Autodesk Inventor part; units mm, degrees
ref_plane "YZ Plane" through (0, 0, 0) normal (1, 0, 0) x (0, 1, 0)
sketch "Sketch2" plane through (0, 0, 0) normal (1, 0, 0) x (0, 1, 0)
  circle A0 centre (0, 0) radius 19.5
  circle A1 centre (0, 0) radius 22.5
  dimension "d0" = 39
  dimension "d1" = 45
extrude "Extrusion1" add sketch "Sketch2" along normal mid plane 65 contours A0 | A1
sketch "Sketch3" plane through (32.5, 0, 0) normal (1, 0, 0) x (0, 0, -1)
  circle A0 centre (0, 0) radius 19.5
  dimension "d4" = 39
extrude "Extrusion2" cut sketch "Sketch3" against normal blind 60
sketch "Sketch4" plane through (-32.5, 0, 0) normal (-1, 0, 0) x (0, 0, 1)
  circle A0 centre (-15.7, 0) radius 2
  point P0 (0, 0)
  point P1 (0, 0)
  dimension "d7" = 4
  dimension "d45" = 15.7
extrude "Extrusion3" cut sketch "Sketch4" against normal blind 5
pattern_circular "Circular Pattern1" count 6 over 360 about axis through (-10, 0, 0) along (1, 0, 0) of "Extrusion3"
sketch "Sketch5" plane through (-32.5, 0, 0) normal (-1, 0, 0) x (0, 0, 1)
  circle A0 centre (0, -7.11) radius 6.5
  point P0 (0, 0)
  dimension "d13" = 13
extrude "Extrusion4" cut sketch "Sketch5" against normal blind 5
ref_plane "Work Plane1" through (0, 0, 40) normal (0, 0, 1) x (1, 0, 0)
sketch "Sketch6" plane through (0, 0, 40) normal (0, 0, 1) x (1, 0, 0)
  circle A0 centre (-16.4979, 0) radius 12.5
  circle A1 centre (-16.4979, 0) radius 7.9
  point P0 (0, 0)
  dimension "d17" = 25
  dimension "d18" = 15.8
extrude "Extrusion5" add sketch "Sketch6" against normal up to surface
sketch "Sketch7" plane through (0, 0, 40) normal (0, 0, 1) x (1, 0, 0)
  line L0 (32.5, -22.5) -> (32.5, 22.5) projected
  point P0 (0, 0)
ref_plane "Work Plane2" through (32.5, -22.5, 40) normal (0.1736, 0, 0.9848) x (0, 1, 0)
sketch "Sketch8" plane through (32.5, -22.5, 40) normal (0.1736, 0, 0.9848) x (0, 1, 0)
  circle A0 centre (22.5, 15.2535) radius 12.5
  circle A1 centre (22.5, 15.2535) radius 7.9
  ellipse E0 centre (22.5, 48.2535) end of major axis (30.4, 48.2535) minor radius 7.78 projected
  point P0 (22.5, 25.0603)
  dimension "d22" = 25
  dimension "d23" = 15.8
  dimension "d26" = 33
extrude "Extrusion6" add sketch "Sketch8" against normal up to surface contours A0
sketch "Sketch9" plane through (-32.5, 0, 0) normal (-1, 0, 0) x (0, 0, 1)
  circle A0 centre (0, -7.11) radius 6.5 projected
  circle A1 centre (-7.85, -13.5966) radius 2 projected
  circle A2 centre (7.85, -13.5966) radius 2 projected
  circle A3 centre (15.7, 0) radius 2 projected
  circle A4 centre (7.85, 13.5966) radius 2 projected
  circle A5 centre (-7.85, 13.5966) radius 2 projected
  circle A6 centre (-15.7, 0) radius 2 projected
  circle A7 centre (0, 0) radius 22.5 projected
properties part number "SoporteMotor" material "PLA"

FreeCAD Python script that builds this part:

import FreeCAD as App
import Part
import Sketcher
from FreeCAD import Vector

doc = App.newDocument("Part")
params = doc.addObject("Spreadsheet::Sheet", "Params")
for row, (alias, value) in enumerate([
    ("sketch1_diameter", "45 mm"),
    ("pad1_length", "65 mm"),
    ("sketch2_diameter", "39 mm"),
    ("pocket1_length", "60 mm"),
    ("sketch3_diameter", "4 mm"),
    ("pocket2_length", "5 mm"),
    ("sketch4_diameter", "13 mm"),
    ("pocket3_length", "5 mm"),
    ("sketch5_diameter", "25 mm"),
    ("sketch5_diameter2", "15.8 mm"),
    ("sketch6_diameter", "25 mm"),
    ("sketch6_diameter2", "15.8 mm"),
], start=1):
    params.set(f"A{row}", alias)
    params.set(f"B{row}", "=" + value)
    params.setAlias(f"B{row}", alias)

body = doc.addObject("PartDesign::Body", "Body")

# Sketch on YZ plane
sketch1 = body.newObject("Sketcher::SketchObject", "Sketch")
sketch1.AttachmentSupport = (doc.getObject("YZ_Plane"), [""])
sketch1.MapMode = "FlatFace"
sketch1.addGeometry(Part.Circle(Vector(0, 0, 0), Vector(0, 0, 1), 22.5), False)
sketch1.addConstraint([
    Sketcher.Constraint("Coincident", 0, 3, -1, 1),
    Sketcher.Constraint("Diameter", 0, 45.0),
])
sketch1.setExpression("Constraints[1]", "Params.sketch1_diameter")
pad1 = body.newObject("PartDesign::Pad", "Pad")
pad1.Profile = sketch1
pad1.setExpression("Length", "Params.pad1_length")
pad1.Midplane = True

# Sketch on YZ plane
sketch2 = body.newObject("Sketcher::SketchObject", "Sketch001")
sketch2.AttachmentSupport = (doc.getObject("YZ_Plane"), [""])
sketch2.MapMode = "FlatFace"
sketch2.AttachmentOffset = App.Placement(Vector(0, 0, 32.5), App.Rotation())
sketch2.addGeometry(Part.Circle(Vector(0, 0, 0), Vector(0, 0, 1), 19.5), False)
sketch2.addConstraint([
    Sketcher.Constraint("Coincident", 0, 3, -1, 1),
    Sketcher.Constraint("Diameter", 0, 39.0),
])
sketch2.setExpression("Constraints[1]", "Params.sketch2_diameter")
pocket1 = body.newObject("PartDesign::Pocket", "Pocket")
pocket1.Profile = sketch2
pocket1.setExpression("Length", "Params.pocket1_length")

# Sketch on YZ plane
sketch3 = body.newObject("Sketcher::SketchObject", "Sketch002")
sketch3.AttachmentSupport = (doc.getObject("YZ_Plane"), [""])
sketch3.MapMode = "FlatFace"
sketch3.AttachmentOffset = App.Placement(Vector(0, 0, -32.5), App.Rotation())
sketch3.addGeometry(Part.Circle(Vector(0, -15.7, 0), Vector(0, 0, 1), 2), False)
sketch3.addConstraint([
    Sketcher.Constraint("PointOnObject", 0, 3, -2),
    Sketcher.Constraint("Diameter", 0, 4.0),
    Sketcher.Constraint("DistanceY", 0, 3, -1, 1, 15.7),
])
sketch3.setExpression("Constraints[1]", "Params.sketch3_diameter")
pocket2 = body.newObject("PartDesign::Pocket", "Pocket001")
pocket2.Profile = sketch3
pocket2.setExpression("Length", "Params.pocket2_length")
pocket2.Reversed = True
doc.recompute()

polarpattern = body.newObject("PartDesign::PolarPattern", "PolarPattern")
polarpattern.Originals = [pocket2]
polarpattern.Axis = (doc.getObject("X_Axis"), [""])
polarpattern.Angle = 360
polarpattern.Occurrences = 6
body.Tip = polarpattern

# Sketch on YZ plane
sketch4 = body.newObject("Sketcher::SketchObject", "Sketch003")
sketch4.AttachmentSupport = (doc.getObject("YZ_Plane"), [""])
sketch4.MapMode = "FlatFace"
sketch4.AttachmentOffset = App.Placement(Vector(0, 0, -32.5), App.Rotation())
sketch4.addGeometry(Part.Circle(Vector(-7.11, 0, 0), Vector(0, 0, 1), 6.5), False)
sketch4.addConstraint([
    Sketcher.Constraint("PointOnObject", 0, 3, -1),
    Sketcher.Constraint("Diameter", 0, 13.0),
    Sketcher.Constraint("DistanceX", 0, 3, -1, 1, 7.11),
])
sketch4.setExpression("Constraints[1]", "Params.sketch4_diameter")
pocket3 = body.newObject("PartDesign::Pocket", "Pocket002")
pocket3.Profile = sketch4
pocket3.setExpression("Length", "Params.pocket3_length")
pocket3.Reversed = True

# Sketch on XY plane
sketch5 = body.newObject("Sketcher::SketchObject", "Sketch004")
sketch5.AttachmentSupport = (doc.getObject("XY_Plane"), [""])
sketch5.MapMode = "FlatFace"
sketch5.AttachmentOffset = App.Placement(Vector(0, 0, 40), App.Rotation())
sketch5.addGeometry([
    Part.Circle(Vector(-16.4979, 0, 0), Vector(0, 0, 1), 12.5),
    Part.Circle(Vector(-16.4979, 0, 0), Vector(0, 0, 1), 7.9),
], False)
sketch5.addConstraint([
    Sketcher.Constraint("Coincident", 1, 3, 0, 3),
    Sketcher.Constraint("PointOnObject", 0, 3, -1),
    Sketcher.Constraint("Diameter", 0, 25.0),
    Sketcher.Constraint("Diameter", 1, 15.8),
    Sketcher.Constraint("DistanceX", 0, 3, -1, 1, 16.498),
])
sketch5.setExpression("Constraints[2]", "Params.sketch5_diameter")
sketch5.setExpression("Constraints[3]", "Params.sketch5_diameter2")
pad2 = body.newObject("PartDesign::Pad", "Pad001")
pad2.Profile = sketch5
pad2.Type = "UpToFirst"
pad2.Reversed = True

# Sketch on an angled plane
sketch6 = body.newObject("Sketcher::SketchObject", "Sketch005")
sketch6.Placement = App.Placement(Vector(32.5, -22.5, 40), App.Rotation(Vector(0, 1, 0), Vector(-0.984807753, 0, 0.173648178), Vector(0.173648178, 0, 0.984807753), "ZXY"))
sketch6.addGeometry([
    Part.Circle(Vector(22.5, 15.2535, 0), Vector(0, 0, 1), 12.5),
    Part.Circle(Vector(22.5, 15.2535, 0), Vector(0, 0, 1), 7.9),
], False)
sketch6.addConstraint([
    Sketcher.Constraint("Coincident", 1, 3, 0, 3),
    Sketcher.Constraint("Diameter", 0, 25.0),
    Sketcher.Constraint("Diameter", 1, 15.8),
    Sketcher.Constraint("DistanceX", -1, 1, 0, 3, 22.5),
    Sketcher.Constraint("DistanceY", -1, 1, 0, 3, 15.2535),
])
sketch6.setExpression("Constraints[1]", "Params.sketch6_diameter")
sketch6.setExpression("Constraints[2]", "Params.sketch6_diameter2")
pad3 = body.newObject("PartDesign::Pad", "Pad002")
pad3.Profile = sketch6
pad3.Type = "UpToFirst"
pad3.Reversed = True

doc.recompute()
